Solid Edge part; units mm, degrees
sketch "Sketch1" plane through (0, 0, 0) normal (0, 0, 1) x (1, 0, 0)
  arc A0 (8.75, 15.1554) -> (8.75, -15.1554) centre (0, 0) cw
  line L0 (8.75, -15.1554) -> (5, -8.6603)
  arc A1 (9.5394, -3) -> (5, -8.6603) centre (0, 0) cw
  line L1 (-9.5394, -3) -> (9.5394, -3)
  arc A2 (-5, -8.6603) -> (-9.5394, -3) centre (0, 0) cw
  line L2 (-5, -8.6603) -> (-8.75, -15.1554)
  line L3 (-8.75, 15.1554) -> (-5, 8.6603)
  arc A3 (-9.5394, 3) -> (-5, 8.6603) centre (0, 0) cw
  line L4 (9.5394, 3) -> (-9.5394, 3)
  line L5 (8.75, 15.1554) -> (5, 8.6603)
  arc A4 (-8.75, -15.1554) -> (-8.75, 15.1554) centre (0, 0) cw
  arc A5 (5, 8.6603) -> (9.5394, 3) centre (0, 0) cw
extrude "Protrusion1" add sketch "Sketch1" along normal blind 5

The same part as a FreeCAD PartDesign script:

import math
import FreeCAD as App
import Part
import Sketcher
from FreeCAD import Vector
Q = App.Units.Quantity

doc = App.newDocument("Part")
body = doc.addObject("PartDesign::Body", "Body")

# Sketch on XY plane
sketch1 = doc.addObject("Sketcher::SketchObject", "Sketch")
body.addObject(sketch1)
sketch1.AttachmentSupport = (doc.XY_Plane, [""])
sketch1.MapMode = "FlatFace"
sketch1.addGeometry([
    Part.ArcOfCircle(Part.Circle(Vector(0, 0, 0), Vector(0, 0, 1), 17.499961), math.radians(-59.999927), math.radians(59.999927)),  # 0
    Part.LineSegment(Vector(8.75, 15.1554, 0), Vector(5, 8.6603, 0)),  # 1
    Part.ArcOfCircle(Part.Circle(Vector(0, 0, 0), Vector(0, 0, 1), 10.000008), math.radians(17.457589), math.radians(60.000132)),  # 2
    Part.LineSegment(Vector(9.5394, 3, 0), Vector(-9.5394, 3, 0)),  # 3
    Part.ArcOfCircle(Part.Circle(Vector(0, 0, 0), Vector(0, 0, 1), 10.00004), math.radians(119.999868), math.radians(162.542411)),  # 4
    Part.LineSegment(Vector(-5, 8.6603, 0), Vector(-8.75, 15.1554, 0)),  # 5
    Part.ArcOfCircle(Part.Circle(Vector(0, 0, 0), Vector(0, 0, 1), 17.499961), math.radians(120.000073), math.radians(239.999927)),  # 6
    Part.LineSegment(Vector(-8.75, -15.1554, 0), Vector(-5, -8.6603, 0)),  # 7
    Part.ArcOfCircle(Part.Circle(Vector(0, 0, 0), Vector(0, 0, 1), 10.000008), math.radians(-162.542411), math.radians(-119.999868)),  # 8
    Part.LineSegment(Vector(-9.5394, -3, 0), Vector(9.5394, -3, 0)),  # 9
    Part.ArcOfCircle(Part.Circle(Vector(0, 0, 0), Vector(0, 0, 1), 10.00004), math.radians(-60.000132), math.radians(-17.457589)),  # 10
    Part.LineSegment(Vector(5, -8.6603, 0), Vector(8.75, -15.1554, 0)),  # 11
], False)
sketch1.addConstraint([
    Sketcher.Constraint("Coincident", 0, 2, 1, 1),
    Sketcher.Constraint("Coincident", 1, 2, 2, 2),
    Sketcher.Constraint("Coincident", 2, 1, 3, 1),
    Sketcher.Constraint("Coincident", 3, 2, 4, 2),
    Sketcher.Constraint("Coincident", 4, 1, 5, 1),
    Sketcher.Constraint("Coincident", 5, 2, 6, 1),
    Sketcher.Constraint("Coincident", 6, 2, 7, 1),
    Sketcher.Constraint("Coincident", 7, 2, 8, 2),
    Sketcher.Constraint("Coincident", 8, 1, 9, 1),
    Sketcher.Constraint("Coincident", 9, 2, 10, 2),
    Sketcher.Constraint("Coincident", 10, 1, 11, 1),
    Sketcher.Constraint("Coincident", 11, 2, 0, 1),
    Sketcher.Constraint("Horizontal", 3),
    Sketcher.Constraint("Horizontal", 9),
    Sketcher.Constraint("Coincident", 0, 3, -1, 1),
    Sketcher.Constraint("Coincident", 2, 3, -1, 1),
    Sketcher.Constraint("Coincident", 4, 3, -1, 1),
    Sketcher.Constraint("Coincident", 6, 3, -1, 1),
    Sketcher.Constraint("Coincident", 8, 3, -1, 1),
    Sketcher.Constraint("Coincident", 10, 3, -1, 1),
    Sketcher.Constraint("Equal", 2, 4),
    Sketcher.Constraint("Equal", 0, 6),
    Sketcher.Constraint("Equal", 4, 8),
    Sketcher.Constraint("Equal", 8, 10),
    Sketcher.Constraint("Parallel", 1, 7),
    Sketcher.Constraint("Parallel", 5, 11),
    Sketcher.Constraint("Horizontal", 1, 2, 4, 1),
    Sketcher.Constraint("Horizontal", 0, 2, 5, 2),
    Sketcher.Constraint("Horizontal", 7, 2, 10, 1),
    Sketcher.Constraint("Vertical", 5, 2, 6, 2),
    Sketcher.Constraint("Vertical", 3, 2, 8, 1),
    Sketcher.Constraint("Radius", 2, Q("10 mm")),
    Sketcher.Constraint("Radius", 0, Q("17.5 mm")),
    Sketcher.Constraint("Angle", 1, Q("-120.0003 deg")),
    Sketcher.Constraint("DistanceX", -1, 1, 1, 2, Q("5 mm")),
    Sketcher.Constraint("DistanceY", -1, 1, 2, 1, Q("3 mm")),
])
pad1 = doc.addObject("PartDesign::Pad", "Pad")
body.addObject(pad1)
pad1.Profile = sketch1
pad1.Length = 5

doc.recompute()
